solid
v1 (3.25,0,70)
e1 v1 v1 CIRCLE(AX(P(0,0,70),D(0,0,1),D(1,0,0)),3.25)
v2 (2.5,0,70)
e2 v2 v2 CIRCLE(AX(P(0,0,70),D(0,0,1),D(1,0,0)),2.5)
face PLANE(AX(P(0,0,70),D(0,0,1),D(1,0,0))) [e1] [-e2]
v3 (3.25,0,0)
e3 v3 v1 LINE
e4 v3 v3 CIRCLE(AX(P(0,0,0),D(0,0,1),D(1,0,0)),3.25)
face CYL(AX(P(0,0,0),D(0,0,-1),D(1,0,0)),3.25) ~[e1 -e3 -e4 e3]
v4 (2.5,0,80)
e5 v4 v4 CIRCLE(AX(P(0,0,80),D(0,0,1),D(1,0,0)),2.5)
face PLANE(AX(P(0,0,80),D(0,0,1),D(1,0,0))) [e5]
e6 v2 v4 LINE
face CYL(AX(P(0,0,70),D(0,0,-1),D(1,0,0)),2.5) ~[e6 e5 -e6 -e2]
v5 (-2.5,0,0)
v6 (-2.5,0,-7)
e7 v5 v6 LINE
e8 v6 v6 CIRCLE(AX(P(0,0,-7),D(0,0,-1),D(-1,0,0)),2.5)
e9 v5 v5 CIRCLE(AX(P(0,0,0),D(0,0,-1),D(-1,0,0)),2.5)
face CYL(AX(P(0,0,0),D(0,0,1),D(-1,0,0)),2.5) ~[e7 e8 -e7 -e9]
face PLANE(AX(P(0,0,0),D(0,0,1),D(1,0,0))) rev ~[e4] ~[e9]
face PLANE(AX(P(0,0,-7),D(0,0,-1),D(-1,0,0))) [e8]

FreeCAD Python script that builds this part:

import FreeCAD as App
import Part
import Sketcher
Q = App.Units.Quantity

doc = App.newDocument("Part")
body = doc.addObject("PartDesign::Body", "Body")

sketch1 = body.newObject("Sketcher::SketchObject", "Sketch")
sketch1.AttachmentSupport = (doc.getObject("XY_Plane"), [""])
sketch1.MapMode = "FlatFace"
sketch1.addGeometry(Part.Circle(App.Vector(0, 0, 0), App.Vector(0, 0, 1), 3.25), False)
sketch1.addConstraint([
    Sketcher.Constraint("Coincident", 0, 3, -1, 1),
    Sketcher.Constraint("Diameter", 0, Q("6.5 mm")),
])
pad1 = body.newObject("PartDesign::Pad", "Pad")
pad1.Profile = sketch1
pad1.Length = 70

sketch2 = body.newObject("Sketcher::SketchObject", "Sketch001")
sketch2.AttachmentSupport = (doc.getObject("XY_Plane"), [""])
sketch2.MapMode = "FlatFace"
sketch2.AttachmentOffset = App.Placement(App.Vector(0, 0, 70), App.Rotation())
sketch2.addGeometry(Part.Circle(App.Vector(0, 0, 0), App.Vector(0, 0, 1), 2.5), False)
sketch2.addConstraint([
    Sketcher.Constraint("Coincident", 0, 3, -1, 1),
    Sketcher.Constraint("Diameter", 0, Q("5 mm")),
])
pad2 = body.newObject("PartDesign::Pad", "Pad001")
pad2.Profile = sketch2
pad2.Length = 10

sketch3 = body.newObject("Sketcher::SketchObject", "Sketch002")
sketch3.AttachmentSupport = (doc.getObject("XY_Plane"), [""])
sketch3.MapMode = "FlatFace"
sketch3.addGeometry(Part.Circle(App.Vector(0, 0, 0), App.Vector(0, 0, 1), 2.5), False)
sketch3.addConstraint([
    Sketcher.Constraint("Coincident", 0, 3, -1, 1),
    Sketcher.Constraint("Diameter", 0, Q("5 mm")),
])
pad3 = body.newObject("PartDesign::Pad", "Pad002")
pad3.Profile = sketch3
pad3.Length = 7
pad3.Reversed = True

doc.recompute()
